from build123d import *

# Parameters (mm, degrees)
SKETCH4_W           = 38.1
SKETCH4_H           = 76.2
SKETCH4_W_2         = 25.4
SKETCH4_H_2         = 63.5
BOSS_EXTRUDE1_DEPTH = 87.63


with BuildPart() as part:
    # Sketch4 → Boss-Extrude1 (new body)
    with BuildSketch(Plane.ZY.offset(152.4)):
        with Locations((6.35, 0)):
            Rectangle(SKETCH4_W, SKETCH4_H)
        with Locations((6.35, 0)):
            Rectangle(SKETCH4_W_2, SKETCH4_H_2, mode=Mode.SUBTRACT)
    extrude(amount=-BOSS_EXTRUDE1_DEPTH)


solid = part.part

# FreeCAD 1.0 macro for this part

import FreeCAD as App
import Part
import Sketcher
from FreeCAD import Vector
Q = App.Units.Quantity

doc = App.newDocument("Part")
params = doc.addObject("Spreadsheet::Sheet", "Params")
for row, (alias, value) in enumerate([
    ("sketch1_width", "3 in"),
    ("sketch1_height", "1 in"),
    ("sketch1_width2", "2.5 in"),
    ("sketch1_height2", "1.5 in"),
    ("pad1_length", "3.45 in"),
], start=1):
    params.set(f"A{row}", alias)
    params.set(f"B{row}", "=" + value)
    params.setAlias(f"B{row}", alias)

body = doc.addObject("PartDesign::Body", "Body")

sketch1 = body.newObject("Sketcher::SketchObject", "Sketch")
sketch1.AttachmentSupport = (doc.getObject("YZ_Plane"), [""])
sketch1.MapMode = "FlatFace"
sketch1.AttachmentOffset = App.Placement(Vector(0, 0, -6 * 25.4), App.Rotation())
sketch1.addGeometry([
    Part.LineSegment(Vector(38, -13, 0), Vector(-38, -13, 0)),
    Part.LineSegment(Vector(-38, -13, 0), Vector(-38, 25, 0)),
    Part.LineSegment(Vector(-38, 25, 0), Vector(38, 25, 0)),
    Part.LineSegment(Vector(38, 25, 0), Vector(38, -13, 0)),
    Part.LineSegment(Vector(-32, 19, 0), Vector(-32, -6, 0)),
    Part.LineSegment(Vector(-32, -6, 0), Vector(32, -6, 0)),
    Part.LineSegment(Vector(32, -6, 0), Vector(32, 19, 0)),
    Part.LineSegment(Vector(32, 19, 0), Vector(-32, 19, 0)),
], False)
sketch1.addConstraint([
    Sketcher.Constraint("Coincident", 0, 2, 1, 1),
    Sketcher.Constraint("Coincident", 1, 2, 2, 1),
    Sketcher.Constraint("Coincident", 2, 2, 3, 1),
    Sketcher.Constraint("Coincident", 3, 2, 0, 1),
    Sketcher.Constraint("Coincident", 4, 2, 5, 1),
    Sketcher.Constraint("Coincident", 5, 2, 6, 1),
    Sketcher.Constraint("Coincident", 6, 2, 7, 1),
    Sketcher.Constraint("Coincident", 7, 2, 4, 1),
    Sketcher.Constraint("Horizontal", 0),
    Sketcher.Constraint("Vertical", 1),
    Sketcher.Constraint("Horizontal", 2),
    Sketcher.Constraint("Vertical", 3),
    Sketcher.Constraint("Vertical", 4),
    Sketcher.Constraint("Horizontal", 5),
    Sketcher.Constraint("Vertical", 6),
    Sketcher.Constraint("Horizontal", 7),
    Sketcher.Constraint("DistanceX", 0, 2, 0, 1, Q("3 in")),
    Sketcher.Constraint("DistanceY", 4, 2, 4, 1, Q("1 in")),
    Sketcher.Constraint("DistanceX", 5, 1, 5, 2, Q("2.5 in")),
    Sketcher.Constraint("DistanceY", 1, 1, 1, 2, Q("1.5 in")),
    Sketcher.Constraint("DistanceY", -1, 1, 1, 2, Q("1 in")),
    Sketcher.Constraint("DistanceX", 0, 2, -1, 1, Q("1.5 in")),
    Sketcher.Constraint("DistanceX", 4, 2, -1, 1, Q("1.25 in")),
    Sketcher.Constraint("DistanceY", 4, 2, -1, 1, Q("0.25 in")),
])
sketch1.setExpression("Constraints[16]", "Params.sketch1_width")
sketch1.setExpression("Constraints[17]", "Params.sketch1_height")
sketch1.setExpression("Constraints[18]", "Params.sketch1_width2")
sketch1.setExpression("Constraints[19]", "Params.sketch1_height2")
pad1 = body.newObject("PartDesign::Pad", "Pad")
pad1.Profile = sketch1
pad1.setExpression("Length", "Params.pad1_length")

doc.recompute()
